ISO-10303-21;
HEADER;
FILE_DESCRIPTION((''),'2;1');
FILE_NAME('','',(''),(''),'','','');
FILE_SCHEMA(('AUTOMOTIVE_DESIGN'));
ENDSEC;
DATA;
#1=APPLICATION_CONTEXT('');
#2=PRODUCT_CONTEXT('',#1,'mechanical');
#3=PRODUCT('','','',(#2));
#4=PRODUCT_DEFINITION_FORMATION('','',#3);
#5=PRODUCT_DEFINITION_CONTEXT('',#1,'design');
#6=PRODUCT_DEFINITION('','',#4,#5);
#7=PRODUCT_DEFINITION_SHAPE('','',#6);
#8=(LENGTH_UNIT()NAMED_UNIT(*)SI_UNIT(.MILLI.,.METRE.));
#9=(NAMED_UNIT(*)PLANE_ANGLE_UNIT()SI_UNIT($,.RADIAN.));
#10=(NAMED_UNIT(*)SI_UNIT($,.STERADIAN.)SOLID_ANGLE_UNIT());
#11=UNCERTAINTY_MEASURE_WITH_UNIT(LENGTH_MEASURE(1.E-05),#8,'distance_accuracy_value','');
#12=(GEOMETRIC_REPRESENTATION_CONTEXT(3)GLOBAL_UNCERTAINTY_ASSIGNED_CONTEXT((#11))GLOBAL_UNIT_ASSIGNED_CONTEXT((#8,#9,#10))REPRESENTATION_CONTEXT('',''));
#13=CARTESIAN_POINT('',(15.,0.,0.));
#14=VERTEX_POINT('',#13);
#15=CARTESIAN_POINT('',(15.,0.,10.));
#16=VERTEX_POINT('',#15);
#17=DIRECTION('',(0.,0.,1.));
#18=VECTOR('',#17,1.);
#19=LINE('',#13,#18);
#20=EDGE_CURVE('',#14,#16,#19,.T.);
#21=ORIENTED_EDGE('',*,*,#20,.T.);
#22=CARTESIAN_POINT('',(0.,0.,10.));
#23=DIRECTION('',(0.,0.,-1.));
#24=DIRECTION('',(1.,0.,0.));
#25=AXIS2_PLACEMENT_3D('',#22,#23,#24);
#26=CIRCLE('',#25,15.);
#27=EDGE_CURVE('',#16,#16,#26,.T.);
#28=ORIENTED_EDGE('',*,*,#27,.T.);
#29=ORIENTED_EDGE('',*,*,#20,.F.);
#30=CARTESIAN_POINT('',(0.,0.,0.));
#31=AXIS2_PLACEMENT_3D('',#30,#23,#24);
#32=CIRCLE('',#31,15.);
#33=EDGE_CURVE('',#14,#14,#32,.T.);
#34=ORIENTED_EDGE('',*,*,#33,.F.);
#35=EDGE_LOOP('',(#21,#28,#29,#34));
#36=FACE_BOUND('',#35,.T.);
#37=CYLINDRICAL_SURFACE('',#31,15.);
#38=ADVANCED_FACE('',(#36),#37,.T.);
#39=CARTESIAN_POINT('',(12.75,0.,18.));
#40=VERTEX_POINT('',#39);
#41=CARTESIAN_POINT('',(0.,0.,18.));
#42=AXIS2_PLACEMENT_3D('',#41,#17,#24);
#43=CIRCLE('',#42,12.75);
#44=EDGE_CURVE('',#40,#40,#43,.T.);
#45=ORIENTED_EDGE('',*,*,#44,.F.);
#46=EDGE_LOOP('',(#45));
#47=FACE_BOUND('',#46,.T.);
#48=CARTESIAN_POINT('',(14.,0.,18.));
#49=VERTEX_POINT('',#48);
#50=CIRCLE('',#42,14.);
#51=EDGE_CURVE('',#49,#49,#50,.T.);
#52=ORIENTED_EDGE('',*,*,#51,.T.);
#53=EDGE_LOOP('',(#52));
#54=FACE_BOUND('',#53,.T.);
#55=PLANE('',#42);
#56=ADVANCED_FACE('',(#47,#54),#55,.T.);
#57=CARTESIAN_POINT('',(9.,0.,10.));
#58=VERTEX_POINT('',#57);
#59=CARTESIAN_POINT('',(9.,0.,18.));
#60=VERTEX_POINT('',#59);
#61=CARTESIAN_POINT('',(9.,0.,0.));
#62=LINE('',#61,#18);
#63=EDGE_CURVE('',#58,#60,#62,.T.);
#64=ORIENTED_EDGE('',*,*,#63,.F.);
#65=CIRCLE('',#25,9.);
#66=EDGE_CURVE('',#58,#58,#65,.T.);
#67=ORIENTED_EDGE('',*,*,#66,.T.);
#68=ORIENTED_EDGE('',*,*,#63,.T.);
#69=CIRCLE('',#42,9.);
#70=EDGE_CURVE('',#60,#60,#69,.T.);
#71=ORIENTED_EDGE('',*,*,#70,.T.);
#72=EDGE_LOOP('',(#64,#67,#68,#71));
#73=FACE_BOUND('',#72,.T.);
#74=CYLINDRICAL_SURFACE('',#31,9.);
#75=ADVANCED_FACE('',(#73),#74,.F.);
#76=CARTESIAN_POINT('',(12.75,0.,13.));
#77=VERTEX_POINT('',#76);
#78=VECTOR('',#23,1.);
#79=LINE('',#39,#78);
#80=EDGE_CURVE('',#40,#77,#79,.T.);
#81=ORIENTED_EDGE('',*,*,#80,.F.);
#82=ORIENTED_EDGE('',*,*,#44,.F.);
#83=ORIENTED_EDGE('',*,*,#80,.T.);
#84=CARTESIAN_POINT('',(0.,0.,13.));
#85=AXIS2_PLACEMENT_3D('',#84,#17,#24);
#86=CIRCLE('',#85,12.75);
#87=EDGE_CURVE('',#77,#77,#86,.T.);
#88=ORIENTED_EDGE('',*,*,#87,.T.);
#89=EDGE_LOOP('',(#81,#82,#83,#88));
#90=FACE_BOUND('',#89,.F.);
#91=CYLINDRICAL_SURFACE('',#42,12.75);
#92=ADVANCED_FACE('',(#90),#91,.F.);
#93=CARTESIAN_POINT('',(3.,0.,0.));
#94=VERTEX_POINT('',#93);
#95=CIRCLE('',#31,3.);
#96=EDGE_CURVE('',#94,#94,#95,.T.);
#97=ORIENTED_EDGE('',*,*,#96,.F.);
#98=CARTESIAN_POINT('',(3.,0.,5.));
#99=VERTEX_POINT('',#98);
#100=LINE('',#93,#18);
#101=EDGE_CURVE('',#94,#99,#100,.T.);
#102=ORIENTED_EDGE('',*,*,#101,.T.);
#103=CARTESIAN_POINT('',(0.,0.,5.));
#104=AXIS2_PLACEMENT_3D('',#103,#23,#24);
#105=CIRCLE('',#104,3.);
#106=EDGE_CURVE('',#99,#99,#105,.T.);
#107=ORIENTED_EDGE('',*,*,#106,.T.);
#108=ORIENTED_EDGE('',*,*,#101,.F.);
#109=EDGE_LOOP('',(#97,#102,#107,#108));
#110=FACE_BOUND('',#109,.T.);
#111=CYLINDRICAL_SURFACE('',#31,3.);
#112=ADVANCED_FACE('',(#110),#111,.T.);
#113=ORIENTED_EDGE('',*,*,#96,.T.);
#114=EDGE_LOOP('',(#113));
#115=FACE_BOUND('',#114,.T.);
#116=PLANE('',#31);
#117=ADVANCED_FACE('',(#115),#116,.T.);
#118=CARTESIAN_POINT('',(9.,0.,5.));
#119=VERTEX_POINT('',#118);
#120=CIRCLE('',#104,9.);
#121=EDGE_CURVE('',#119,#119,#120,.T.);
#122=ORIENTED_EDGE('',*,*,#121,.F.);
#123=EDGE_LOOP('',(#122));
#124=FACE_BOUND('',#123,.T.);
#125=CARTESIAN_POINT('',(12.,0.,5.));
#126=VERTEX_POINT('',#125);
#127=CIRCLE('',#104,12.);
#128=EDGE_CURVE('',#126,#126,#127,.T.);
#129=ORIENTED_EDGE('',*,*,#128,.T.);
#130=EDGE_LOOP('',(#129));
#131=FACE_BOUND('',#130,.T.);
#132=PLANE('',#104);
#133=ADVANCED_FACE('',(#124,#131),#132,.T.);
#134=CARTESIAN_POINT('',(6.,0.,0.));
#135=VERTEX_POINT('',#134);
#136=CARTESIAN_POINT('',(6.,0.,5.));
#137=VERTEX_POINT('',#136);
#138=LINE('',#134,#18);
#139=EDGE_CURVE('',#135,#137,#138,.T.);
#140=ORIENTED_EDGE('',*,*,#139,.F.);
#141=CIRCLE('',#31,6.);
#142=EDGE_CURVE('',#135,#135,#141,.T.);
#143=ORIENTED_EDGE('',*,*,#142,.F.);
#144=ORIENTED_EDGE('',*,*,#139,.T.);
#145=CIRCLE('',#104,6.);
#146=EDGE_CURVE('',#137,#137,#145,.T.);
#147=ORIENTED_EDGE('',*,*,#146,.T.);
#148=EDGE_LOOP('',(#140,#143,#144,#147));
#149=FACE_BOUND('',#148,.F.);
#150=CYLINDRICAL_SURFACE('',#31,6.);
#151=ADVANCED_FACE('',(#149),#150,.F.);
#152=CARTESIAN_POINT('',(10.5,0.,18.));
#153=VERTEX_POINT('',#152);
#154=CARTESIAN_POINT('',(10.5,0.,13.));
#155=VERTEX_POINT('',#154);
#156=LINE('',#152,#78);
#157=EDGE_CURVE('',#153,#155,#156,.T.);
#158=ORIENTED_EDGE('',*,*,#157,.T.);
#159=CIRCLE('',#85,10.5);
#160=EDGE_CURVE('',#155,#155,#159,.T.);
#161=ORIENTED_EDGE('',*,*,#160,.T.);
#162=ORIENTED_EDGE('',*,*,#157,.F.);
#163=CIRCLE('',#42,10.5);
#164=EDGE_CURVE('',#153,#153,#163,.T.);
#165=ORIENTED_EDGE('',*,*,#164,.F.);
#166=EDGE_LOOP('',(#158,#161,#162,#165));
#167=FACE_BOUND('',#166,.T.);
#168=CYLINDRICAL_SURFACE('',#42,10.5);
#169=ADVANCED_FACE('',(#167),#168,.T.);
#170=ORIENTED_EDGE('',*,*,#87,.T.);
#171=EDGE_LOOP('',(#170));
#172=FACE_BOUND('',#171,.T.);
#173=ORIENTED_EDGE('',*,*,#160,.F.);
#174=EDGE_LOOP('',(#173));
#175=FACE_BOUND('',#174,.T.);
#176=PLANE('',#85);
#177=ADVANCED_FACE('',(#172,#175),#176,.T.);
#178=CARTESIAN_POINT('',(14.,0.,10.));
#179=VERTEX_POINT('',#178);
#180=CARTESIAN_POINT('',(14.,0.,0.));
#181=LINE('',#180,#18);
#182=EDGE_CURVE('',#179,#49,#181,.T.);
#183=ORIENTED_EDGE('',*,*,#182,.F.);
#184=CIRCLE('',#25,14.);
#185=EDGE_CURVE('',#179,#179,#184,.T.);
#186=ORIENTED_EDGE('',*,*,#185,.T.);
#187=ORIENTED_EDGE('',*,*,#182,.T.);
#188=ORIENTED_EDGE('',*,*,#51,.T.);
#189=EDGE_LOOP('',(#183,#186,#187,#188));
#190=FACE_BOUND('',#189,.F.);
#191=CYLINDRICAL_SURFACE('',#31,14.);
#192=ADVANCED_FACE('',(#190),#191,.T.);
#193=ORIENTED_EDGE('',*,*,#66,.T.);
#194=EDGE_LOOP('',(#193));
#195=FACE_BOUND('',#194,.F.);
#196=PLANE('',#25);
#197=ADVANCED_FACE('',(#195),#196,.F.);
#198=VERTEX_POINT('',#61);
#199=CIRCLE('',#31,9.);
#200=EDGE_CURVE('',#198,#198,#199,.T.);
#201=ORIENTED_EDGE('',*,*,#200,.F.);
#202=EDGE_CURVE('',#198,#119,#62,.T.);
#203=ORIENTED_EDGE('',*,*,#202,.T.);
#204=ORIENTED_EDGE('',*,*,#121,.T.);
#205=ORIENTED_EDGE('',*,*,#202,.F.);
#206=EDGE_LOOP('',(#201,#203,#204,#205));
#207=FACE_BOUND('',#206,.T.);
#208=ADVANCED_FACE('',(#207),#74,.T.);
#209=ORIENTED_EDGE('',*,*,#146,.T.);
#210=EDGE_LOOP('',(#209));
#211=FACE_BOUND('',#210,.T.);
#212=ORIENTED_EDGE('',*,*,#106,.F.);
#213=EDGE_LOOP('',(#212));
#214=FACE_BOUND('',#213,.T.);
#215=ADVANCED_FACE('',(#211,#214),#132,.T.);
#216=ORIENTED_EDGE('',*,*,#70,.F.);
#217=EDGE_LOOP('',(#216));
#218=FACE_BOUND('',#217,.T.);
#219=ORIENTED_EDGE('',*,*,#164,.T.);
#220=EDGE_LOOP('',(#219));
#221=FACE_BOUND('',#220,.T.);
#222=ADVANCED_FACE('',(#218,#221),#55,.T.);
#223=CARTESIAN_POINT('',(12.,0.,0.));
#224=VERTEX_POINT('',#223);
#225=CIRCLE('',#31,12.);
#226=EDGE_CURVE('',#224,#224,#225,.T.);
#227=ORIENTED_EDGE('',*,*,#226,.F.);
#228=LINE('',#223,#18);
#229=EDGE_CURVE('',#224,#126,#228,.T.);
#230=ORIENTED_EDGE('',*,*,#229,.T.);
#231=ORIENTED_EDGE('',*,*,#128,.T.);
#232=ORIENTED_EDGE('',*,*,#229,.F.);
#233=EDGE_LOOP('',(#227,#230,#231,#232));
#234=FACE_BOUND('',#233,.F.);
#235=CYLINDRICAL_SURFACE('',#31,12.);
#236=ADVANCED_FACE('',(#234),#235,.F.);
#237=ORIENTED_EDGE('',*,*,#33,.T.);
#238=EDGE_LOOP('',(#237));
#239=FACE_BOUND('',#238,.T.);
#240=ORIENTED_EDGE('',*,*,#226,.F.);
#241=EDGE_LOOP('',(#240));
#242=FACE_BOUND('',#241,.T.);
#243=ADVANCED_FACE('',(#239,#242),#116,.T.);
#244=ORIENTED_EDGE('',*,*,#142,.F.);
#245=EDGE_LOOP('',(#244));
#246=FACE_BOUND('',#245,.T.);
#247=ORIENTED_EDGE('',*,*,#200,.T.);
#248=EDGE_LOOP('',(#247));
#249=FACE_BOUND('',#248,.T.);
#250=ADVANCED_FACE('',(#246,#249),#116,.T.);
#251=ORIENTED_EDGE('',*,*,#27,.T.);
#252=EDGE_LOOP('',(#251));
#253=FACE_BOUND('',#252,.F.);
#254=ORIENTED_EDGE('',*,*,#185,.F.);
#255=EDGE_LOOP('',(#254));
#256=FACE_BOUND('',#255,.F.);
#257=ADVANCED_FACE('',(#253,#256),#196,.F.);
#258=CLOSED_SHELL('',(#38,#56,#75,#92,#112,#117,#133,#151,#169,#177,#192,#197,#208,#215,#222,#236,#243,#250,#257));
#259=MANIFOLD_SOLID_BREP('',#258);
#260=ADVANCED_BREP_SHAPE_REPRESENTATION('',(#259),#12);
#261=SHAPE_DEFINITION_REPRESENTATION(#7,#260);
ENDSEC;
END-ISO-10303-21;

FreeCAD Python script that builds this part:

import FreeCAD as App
import Part
import Sketcher

V = App.Vector

doc = App.newDocument("Part")
body = doc.addObject("PartDesign::Body", "Body")

# Sketch on XY plane
sketch1 = doc.addObject("Sketcher::SketchObject", "Sketch")
body.addObject(sketch1)
sketch1.AttachmentSupport = (doc.XY_Plane, [""])
sketch1.MapMode = "FlatFace"
sketch1.addGeometry([
    Part.Circle(V(0, 0, 0), V(0, 0, 1), 14),
    Part.Circle(V(0, 0, 0), V(0, 0, 1), 9),
], False)
sketch1.addConstraint([
    Sketcher.Constraint("Coincident", 0, 3, -1, 1),
    Sketcher.Constraint("Coincident", 1, 3, -1, 1),
    Sketcher.Constraint("Diameter", 0, 28.0),
    Sketcher.Constraint("Diameter", 1, 18.0),
])
pad1 = doc.addObject("PartDesign::Pad", "Pad")
body.addObject(pad1)
pad1.Profile = sketch1
pad1.Length = 18

# Sketch on XY plane
sketch2 = doc.addObject("Sketcher::SketchObject", "Sketch001")
body.addObject(sketch2)
sketch2.AttachmentSupport = (doc.XY_Plane, [""])
sketch2.MapMode = "FlatFace"
sketch2.addGeometry(Part.Circle(V(0, 0, 0), V(0, 0, 1), 15), False)
sketch2.addConstraint([
    Sketcher.Constraint("Coincident", 0, 3, -1, 1),
    Sketcher.Constraint("Diameter", 0, 30.0),
])
pad2 = doc.addObject("PartDesign::Pad", "Pad001")
body.addObject(pad2)
pad2.Profile = sketch2
pad2.Length = 10

# Sketch on XY plane
sketch3 = doc.addObject("Sketcher::SketchObject", "Sketch002")
body.addObject(sketch3)
sketch3.AttachmentSupport = (doc.XY_Plane, [""])
sketch3.MapMode = "FlatFace"
sketch3.AttachmentOffset = App.Placement(V(0, 0, 18), App.Rotation())
sketch3.addGeometry([
    Part.Circle(V(0, 0, 0), V(0, 0, 1), 13),
    Part.Circle(V(0, 0, 0), V(0, 0, 1), 10),
], False)
sketch3.addConstraint([
    Sketcher.Constraint("Coincident", 0, 3, -1, 1),
    Sketcher.Constraint("Coincident", 1, 3, -1, 1),
    Sketcher.Constraint("Diameter", 1, 21.0),
    Sketcher.Constraint("Diameter", 0, 25.5),
])
pocket1 = doc.addObject("PartDesign::Pocket", "Pocket")
body.addObject(pocket1)
pocket1.Profile = sketch3
pocket1.Length = 5

# Sketch on XY plane
sketch4 = doc.addObject("Sketcher::SketchObject", "Sketch003")
body.addObject(sketch4)
sketch4.AttachmentSupport = (doc.XY_Plane, [""])
sketch4.MapMode = "FlatFace"
sketch4.addGeometry([
    Part.Circle(V(0, 0, 0), V(0, 0, 1), 6),
    Part.Circle(V(0, 0, 0), V(0, 0, 1), 3),
], False)
sketch4.addConstraint([
    Sketcher.Constraint("Coincident", 0, 3, -1, 1),
    Sketcher.Constraint("Coincident", 1, 3, -1, 1),
    Sketcher.Constraint("Diameter", 0, 12.0),
    Sketcher.Constraint("Diameter", 1, 6.0),
])
pocket2 = doc.addObject("PartDesign::Pocket", "Pocket001")
body.addObject(pocket2)
pocket2.Profile = sketch4
pocket2.Length = 5
pocket2.Reversed = True

# Sketch on XY plane
sketch5 = doc.addObject("Sketcher::SketchObject", "Sketch004")
body.addObject(sketch5)
sketch5.AttachmentSupport = (doc.XY_Plane, [""])
sketch5.MapMode = "FlatFace"
sketch5.addGeometry([
    Part.Circle(V(0, 0, 0), V(0, 0, 1), 12),
    Part.Circle(V(0, 0, 0), V(0, 0, 1), 9),
], False)
sketch5.addConstraint([
    Sketcher.Constraint("Coincident", 0, 3, -1, 1),
    Sketcher.Constraint("Coincident", 1, 3, -1, 1),
    Sketcher.Constraint("Diameter", 0, 24.0),
    Sketcher.Constraint("Diameter", 1, 18.0),
])
pocket3 = doc.addObject("PartDesign::Pocket", "Pocket002")
body.addObject(pocket3)
pocket3.Profile = sketch5
pocket3.Length = 5
pocket3.Reversed = True

doc.recompute()
